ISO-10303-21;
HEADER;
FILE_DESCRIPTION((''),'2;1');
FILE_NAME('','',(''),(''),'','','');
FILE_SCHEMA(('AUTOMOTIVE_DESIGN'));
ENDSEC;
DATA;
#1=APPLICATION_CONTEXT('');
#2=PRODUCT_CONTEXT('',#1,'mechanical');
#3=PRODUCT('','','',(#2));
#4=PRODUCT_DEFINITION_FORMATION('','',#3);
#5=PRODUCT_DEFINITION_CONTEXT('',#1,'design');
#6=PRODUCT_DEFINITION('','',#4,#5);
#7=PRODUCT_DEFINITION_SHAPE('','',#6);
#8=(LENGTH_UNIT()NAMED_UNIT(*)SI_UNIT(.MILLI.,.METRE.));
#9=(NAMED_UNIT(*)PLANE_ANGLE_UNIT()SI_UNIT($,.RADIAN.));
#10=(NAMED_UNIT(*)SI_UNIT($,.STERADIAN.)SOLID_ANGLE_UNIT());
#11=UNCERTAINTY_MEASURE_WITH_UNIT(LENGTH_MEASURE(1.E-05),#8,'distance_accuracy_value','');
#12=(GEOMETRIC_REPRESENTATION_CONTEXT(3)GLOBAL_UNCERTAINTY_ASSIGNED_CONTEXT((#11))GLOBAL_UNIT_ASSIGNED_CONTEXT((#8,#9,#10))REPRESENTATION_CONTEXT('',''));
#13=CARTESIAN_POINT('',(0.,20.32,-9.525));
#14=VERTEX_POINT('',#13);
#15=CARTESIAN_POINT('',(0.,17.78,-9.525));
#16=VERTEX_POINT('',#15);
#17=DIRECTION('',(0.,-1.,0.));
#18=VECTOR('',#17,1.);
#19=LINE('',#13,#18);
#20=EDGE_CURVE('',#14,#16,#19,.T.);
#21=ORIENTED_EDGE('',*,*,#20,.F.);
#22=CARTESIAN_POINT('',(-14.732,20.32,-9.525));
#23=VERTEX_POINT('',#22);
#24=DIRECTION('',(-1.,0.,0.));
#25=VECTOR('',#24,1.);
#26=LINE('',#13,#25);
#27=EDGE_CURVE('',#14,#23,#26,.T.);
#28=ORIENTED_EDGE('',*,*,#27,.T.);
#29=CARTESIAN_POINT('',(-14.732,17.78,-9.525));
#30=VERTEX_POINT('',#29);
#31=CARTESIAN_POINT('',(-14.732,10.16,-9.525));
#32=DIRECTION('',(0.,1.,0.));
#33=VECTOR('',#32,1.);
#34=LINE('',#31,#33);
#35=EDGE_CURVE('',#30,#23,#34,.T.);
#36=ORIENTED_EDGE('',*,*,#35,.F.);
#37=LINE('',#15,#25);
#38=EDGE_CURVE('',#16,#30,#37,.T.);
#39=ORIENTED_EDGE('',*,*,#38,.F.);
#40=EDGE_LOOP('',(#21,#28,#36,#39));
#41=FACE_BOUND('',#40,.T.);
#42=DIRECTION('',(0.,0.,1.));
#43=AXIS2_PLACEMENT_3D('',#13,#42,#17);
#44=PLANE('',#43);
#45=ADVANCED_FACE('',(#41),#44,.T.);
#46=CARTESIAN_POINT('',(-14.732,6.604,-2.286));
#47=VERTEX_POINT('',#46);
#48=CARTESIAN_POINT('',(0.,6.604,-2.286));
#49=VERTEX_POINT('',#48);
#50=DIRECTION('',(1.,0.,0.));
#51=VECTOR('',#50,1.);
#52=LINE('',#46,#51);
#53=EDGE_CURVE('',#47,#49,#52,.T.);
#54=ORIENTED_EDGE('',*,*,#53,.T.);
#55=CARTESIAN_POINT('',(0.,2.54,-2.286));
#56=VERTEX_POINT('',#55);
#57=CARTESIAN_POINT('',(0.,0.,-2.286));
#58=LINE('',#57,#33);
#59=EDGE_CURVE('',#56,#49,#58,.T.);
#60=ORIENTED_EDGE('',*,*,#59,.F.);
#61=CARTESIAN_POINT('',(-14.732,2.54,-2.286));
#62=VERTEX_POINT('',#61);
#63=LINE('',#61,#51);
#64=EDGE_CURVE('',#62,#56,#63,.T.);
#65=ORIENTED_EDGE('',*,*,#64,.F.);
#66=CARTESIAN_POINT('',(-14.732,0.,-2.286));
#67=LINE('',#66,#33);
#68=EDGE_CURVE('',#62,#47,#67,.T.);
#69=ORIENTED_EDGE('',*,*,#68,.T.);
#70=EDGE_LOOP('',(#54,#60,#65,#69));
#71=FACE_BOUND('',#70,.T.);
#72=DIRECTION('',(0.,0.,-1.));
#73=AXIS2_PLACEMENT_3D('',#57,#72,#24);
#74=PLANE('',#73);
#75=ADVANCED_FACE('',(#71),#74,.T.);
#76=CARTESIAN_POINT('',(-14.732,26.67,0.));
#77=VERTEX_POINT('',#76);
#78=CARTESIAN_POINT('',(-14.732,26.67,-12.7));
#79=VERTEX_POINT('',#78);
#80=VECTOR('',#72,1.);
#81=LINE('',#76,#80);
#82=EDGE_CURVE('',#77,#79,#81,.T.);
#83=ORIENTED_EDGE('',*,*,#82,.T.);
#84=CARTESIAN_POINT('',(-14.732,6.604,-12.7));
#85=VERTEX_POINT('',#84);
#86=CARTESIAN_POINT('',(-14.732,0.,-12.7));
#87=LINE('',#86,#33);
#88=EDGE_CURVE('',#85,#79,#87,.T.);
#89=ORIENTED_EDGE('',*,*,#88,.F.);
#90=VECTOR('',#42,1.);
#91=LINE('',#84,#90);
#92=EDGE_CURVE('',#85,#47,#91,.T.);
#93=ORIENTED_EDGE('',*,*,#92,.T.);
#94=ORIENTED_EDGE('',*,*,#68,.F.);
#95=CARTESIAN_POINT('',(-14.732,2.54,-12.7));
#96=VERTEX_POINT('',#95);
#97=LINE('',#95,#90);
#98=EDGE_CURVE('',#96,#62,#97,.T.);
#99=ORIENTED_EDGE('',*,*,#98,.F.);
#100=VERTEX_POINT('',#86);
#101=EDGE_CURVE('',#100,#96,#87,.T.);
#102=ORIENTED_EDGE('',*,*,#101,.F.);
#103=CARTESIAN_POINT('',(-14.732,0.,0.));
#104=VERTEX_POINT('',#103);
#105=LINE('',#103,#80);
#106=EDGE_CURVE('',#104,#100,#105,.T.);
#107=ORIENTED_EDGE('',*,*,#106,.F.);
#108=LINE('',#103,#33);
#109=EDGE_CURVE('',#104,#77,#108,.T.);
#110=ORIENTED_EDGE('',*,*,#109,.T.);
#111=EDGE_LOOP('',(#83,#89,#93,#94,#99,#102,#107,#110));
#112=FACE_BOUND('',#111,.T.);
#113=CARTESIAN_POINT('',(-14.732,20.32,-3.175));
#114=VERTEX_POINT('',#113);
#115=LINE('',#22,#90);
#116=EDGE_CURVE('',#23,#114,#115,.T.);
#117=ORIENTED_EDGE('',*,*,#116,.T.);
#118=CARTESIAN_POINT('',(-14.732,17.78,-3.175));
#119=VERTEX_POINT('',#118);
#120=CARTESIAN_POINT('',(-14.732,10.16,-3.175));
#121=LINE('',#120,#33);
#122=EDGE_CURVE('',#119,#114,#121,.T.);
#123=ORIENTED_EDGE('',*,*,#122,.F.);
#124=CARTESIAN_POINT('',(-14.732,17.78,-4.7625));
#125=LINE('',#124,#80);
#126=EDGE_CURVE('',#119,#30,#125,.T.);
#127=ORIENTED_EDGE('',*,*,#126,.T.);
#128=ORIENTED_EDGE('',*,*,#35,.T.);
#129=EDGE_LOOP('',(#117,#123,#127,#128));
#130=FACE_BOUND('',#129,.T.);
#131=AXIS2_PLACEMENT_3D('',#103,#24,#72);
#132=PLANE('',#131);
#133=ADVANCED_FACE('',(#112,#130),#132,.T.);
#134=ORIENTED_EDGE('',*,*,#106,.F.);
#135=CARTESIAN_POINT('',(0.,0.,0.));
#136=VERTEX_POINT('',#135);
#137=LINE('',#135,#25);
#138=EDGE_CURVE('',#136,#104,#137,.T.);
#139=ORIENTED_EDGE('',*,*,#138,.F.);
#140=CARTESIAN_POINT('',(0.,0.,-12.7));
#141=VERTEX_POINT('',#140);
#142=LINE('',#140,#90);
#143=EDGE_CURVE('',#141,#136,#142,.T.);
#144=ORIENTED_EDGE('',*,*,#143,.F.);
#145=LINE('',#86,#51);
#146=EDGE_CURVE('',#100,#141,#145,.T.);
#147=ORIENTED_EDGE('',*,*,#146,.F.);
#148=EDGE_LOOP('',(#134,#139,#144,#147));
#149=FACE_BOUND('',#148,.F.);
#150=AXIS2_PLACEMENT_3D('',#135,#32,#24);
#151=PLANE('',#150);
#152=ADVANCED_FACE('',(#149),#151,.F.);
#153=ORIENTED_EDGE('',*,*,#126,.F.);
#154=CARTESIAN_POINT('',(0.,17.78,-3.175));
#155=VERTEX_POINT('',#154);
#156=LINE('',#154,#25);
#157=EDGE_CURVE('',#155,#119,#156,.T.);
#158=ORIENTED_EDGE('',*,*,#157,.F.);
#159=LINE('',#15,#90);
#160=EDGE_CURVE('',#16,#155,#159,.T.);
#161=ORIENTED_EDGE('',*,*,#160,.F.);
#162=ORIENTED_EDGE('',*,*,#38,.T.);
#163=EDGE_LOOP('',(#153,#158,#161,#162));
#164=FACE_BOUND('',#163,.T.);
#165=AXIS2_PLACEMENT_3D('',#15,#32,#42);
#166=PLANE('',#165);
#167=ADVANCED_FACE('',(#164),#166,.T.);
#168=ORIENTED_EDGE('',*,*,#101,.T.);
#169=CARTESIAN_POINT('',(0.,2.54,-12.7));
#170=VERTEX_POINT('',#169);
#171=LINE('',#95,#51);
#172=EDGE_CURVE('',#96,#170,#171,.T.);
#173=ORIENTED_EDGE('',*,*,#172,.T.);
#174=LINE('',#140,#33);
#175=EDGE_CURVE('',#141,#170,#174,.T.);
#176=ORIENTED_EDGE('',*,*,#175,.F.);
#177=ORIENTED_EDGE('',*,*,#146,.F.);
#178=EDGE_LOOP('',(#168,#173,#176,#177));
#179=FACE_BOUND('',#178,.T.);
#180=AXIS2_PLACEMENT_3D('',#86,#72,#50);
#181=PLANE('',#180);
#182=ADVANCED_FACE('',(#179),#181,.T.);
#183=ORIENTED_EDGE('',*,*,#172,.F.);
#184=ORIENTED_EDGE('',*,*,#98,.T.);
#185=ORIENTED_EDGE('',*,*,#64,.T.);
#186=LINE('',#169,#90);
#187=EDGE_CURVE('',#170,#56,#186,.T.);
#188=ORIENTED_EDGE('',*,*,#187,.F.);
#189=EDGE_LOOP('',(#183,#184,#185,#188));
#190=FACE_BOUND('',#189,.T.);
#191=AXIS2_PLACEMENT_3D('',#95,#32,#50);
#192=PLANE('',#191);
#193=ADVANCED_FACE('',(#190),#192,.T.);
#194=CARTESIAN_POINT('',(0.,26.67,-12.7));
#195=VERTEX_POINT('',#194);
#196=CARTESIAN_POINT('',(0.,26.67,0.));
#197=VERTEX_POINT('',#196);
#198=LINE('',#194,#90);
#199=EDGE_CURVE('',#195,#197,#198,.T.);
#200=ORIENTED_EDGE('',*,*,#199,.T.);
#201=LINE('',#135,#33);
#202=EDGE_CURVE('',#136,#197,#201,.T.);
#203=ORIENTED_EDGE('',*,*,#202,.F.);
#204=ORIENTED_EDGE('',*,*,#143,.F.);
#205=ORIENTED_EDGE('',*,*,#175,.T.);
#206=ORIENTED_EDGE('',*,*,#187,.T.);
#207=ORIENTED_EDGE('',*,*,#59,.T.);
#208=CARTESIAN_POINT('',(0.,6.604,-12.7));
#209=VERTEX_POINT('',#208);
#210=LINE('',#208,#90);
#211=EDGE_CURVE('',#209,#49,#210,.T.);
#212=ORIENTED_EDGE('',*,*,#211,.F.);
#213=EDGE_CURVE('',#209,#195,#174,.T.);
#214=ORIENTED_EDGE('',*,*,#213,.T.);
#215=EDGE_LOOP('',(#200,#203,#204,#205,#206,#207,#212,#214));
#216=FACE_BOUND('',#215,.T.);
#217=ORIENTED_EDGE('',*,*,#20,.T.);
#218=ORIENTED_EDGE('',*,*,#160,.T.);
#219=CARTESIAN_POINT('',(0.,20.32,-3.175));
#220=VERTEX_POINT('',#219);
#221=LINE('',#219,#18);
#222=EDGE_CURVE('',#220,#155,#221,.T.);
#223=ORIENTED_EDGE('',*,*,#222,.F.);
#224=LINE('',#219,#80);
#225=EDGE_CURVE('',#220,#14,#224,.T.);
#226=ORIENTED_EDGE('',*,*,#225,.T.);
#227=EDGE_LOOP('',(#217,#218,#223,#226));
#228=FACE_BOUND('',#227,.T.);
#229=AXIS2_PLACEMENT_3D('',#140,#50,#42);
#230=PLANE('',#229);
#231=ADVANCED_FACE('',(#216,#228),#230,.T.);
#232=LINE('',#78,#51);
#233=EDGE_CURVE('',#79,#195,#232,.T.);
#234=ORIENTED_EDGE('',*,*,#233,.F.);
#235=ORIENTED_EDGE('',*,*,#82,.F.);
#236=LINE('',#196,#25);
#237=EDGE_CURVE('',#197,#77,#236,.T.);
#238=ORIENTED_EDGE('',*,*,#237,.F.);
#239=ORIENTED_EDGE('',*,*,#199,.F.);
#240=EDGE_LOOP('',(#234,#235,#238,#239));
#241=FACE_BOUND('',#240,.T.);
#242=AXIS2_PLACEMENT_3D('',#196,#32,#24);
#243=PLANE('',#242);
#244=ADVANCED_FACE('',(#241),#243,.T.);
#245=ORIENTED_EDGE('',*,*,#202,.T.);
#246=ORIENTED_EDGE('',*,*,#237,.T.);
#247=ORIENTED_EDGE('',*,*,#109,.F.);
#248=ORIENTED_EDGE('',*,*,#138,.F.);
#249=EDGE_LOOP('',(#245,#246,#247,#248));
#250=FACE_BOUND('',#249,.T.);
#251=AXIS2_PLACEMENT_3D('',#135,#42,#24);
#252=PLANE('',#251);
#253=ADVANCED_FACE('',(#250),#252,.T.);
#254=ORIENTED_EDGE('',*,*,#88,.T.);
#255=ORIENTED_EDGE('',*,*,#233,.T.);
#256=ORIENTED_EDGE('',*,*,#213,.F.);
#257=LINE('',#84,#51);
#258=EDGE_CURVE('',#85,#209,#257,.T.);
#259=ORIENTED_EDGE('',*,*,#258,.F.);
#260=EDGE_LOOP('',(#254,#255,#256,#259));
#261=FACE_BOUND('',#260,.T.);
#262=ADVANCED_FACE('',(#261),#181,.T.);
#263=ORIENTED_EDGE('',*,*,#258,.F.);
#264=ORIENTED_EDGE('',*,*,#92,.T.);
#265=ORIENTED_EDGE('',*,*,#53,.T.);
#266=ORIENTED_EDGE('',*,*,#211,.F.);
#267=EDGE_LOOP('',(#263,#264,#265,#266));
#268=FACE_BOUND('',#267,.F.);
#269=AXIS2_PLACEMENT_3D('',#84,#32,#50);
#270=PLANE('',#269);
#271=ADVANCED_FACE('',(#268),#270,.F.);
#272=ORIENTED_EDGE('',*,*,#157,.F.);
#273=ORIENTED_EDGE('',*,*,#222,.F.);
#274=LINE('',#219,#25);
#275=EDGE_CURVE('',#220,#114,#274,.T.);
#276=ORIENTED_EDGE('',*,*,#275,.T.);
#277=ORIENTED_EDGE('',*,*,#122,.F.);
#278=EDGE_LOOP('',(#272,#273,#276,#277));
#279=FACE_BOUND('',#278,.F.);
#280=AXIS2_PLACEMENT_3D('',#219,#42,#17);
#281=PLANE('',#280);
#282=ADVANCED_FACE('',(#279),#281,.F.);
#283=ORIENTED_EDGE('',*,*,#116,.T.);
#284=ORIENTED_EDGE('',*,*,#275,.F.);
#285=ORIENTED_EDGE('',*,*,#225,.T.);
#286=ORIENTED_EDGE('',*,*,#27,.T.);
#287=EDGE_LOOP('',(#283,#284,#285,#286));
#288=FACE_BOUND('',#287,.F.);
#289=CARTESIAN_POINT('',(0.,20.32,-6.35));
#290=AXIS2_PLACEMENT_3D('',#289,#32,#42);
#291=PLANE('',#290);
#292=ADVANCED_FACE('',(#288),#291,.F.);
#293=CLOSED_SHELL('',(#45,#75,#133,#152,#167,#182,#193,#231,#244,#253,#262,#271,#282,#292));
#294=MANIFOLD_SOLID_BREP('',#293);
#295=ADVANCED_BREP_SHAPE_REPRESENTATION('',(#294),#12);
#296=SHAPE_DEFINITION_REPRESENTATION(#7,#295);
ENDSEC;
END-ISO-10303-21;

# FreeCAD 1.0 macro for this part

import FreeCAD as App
import Part
import Sketcher
from FreeCAD import Vector
Q = App.Units.Quantity


def add_polygon(sketch, points):
    """Adds a closed chain of lines whose ends are joined by coincident constraints."""
    first, n = sketch.GeometryCount, len(points)
    for a, b in zip(points, points[1:] + points[:1]):
        sketch.addGeometry(Part.LineSegment(App.Vector(*a, 0), App.Vector(*b, 0)), False)
    for i in range(n):
        sketch.addConstraint(Sketcher.Constraint("Coincident", first + i, 2, first + (i + 1) % n, 1))

doc = App.newDocument("Part")
body = doc.addObject("PartDesign::Body", "Body")

sketch1 = doc.addObject("Sketcher::SketchObject", "Sketch")
body.addObject(sketch1)
sketch1.AttachmentSupport = (doc.XZ_Plane, [""])
sketch1.MapMode = "FlatFace"
add_polygon(sketch1, [(-15, 0), (0, 0), (0, -13), (-15, -13)])
sketch1.addConstraint([
    Sketcher.Constraint("Horizontal", 0),
    Sketcher.Constraint("Vertical", 1),
    Sketcher.Constraint("Horizontal", 2),
    Sketcher.Constraint("Vertical", 3),
    Sketcher.Constraint("Coincident", 0, 2, -1, 1),
    Sketcher.Constraint("DistanceY", 1, 2, 1, 1, Q("0.5 in")),
    Sketcher.Constraint("DistanceX", 0, 1, 0, 2, Q("0.58 in")),
])
pad1 = doc.addObject("PartDesign::Pad", "Pad")
body.addObject(pad1)
pad1.Profile = sketch1
pad1.Length = Q("1.05 in")
pad1.Reversed = True

sketch2 = doc.addObject("Sketcher::SketchObject", "Sketch001")
body.addObject(sketch2)
sketch2.AttachmentSupport = (doc.XY_Plane, [""])
sketch2.MapMode = "FlatFace"
sketch2.AttachmentOffset = App.Placement(Vector(0, 0, -0.5 * 25.4), App.Rotation())
add_polygon(sketch2, [(0, 6.6), (0, 2.5), (-14.7, 2.5), (-14.7, 6.6)])
sketch2.addConstraint([
    Sketcher.Constraint("Vertical", 0),
    Sketcher.Constraint("Horizontal", 1),
    Sketcher.Constraint("Vertical", 2),
    Sketcher.Constraint("Horizontal", 3),
    Sketcher.Constraint("PointOnObject", 0, 2, -2),
    Sketcher.Constraint("DistanceY", 0, 2, 0, 1, Q("0.16 in")),
    Sketcher.Constraint("DistanceY", -1, 1, 0, 2, Q("0.1 in")),
    Sketcher.Constraint("DistanceX", 1, 2, 1, 1, Q("0.58 in")),
])
pocket1 = doc.addObject("PartDesign::Pocket", "Pocket")
body.addObject(pocket1)
pocket1.Profile = sketch2
pocket1.Length = Q("0.41 in")
pocket1.Reversed = True

sketch3 = doc.addObject("Sketcher::SketchObject", "Sketch002")
body.addObject(sketch3)
sketch3.AttachmentSupport = (doc.YZ_Plane, [""])
sketch3.MapMode = "FlatFace"
add_polygon(sketch3, [(20.3, -9.5), (20.3, -3.2), (17.8, -3.2), (17.8, -9.5)])
sketch3.addConstraint([
    Sketcher.Constraint("Vertical", 0),
    Sketcher.Constraint("Horizontal", 1),
    Sketcher.Constraint("Vertical", 2),
    Sketcher.Constraint("Horizontal", 3),
    Sketcher.Constraint("DistanceX", 1, 2, 1, 1, Q("0.1 in")),
    Sketcher.Constraint("DistanceY", 0, 1, 0, 2, Q("0.25 in")),
    Sketcher.Constraint("DistanceY", 0, 2, -1, 1, Q("0.125 in")),
    Sketcher.Constraint("DistanceX", -1, 1, 0, 2, Q("0.8 in")),
])
pocket2 = doc.addObject("PartDesign::Pocket", "Pocket001")
body.addObject(pocket2)
pocket2.Profile = sketch3
pocket2.Length = Q("0.5975 in")

doc.recompute()
